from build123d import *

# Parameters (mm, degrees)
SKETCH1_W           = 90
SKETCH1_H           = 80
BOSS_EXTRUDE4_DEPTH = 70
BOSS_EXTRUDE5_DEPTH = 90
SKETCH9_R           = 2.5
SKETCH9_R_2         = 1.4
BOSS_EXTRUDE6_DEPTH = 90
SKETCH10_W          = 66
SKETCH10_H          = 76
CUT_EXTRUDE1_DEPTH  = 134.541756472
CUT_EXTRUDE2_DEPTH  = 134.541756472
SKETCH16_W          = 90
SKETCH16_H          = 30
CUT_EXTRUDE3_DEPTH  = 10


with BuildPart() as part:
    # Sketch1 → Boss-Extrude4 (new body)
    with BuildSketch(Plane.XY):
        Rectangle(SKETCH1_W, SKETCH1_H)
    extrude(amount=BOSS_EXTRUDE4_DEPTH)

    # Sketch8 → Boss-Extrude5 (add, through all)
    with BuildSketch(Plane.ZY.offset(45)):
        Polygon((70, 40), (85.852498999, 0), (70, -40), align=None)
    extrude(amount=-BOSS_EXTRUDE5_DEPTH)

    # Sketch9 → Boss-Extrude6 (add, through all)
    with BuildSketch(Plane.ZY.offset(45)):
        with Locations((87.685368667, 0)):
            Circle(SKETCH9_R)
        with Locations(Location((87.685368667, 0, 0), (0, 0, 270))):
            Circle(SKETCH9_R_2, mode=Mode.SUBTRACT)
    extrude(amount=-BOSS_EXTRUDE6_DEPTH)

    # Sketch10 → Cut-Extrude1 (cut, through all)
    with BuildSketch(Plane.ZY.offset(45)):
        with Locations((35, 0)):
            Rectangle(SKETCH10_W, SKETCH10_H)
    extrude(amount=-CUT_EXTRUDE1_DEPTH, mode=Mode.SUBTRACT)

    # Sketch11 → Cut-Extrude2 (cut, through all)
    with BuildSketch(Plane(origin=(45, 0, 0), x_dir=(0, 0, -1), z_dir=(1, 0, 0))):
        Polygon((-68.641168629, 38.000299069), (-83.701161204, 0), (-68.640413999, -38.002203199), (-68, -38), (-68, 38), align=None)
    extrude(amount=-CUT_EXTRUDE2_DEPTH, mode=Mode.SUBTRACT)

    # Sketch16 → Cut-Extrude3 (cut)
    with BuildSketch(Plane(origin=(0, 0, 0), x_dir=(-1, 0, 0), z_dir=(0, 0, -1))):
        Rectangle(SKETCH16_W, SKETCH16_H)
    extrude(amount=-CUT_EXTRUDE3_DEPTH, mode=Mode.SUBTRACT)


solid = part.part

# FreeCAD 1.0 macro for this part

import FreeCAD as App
import Part
import Sketcher

V = App.Vector
Q = App.Units.Quantity


def add_polygon(sketch, points):
    """Adds a closed chain of lines whose ends are joined by coincident constraints."""
    first, n = sketch.GeometryCount, len(points)
    for a, b in zip(points, points[1:] + points[:1]):
        sketch.addGeometry(Part.LineSegment(App.Vector(*a, 0), App.Vector(*b, 0)), False)
    for i in range(n):
        sketch.addConstraint(Sketcher.Constraint("Coincident", first + i, 2, first + (i + 1) % n, 1))

doc = App.newDocument("Part")
body = doc.addObject("PartDesign::Body", "Body")

# Sketch on XY plane
sketch1 = body.newObject("Sketcher::SketchObject", "Sketch")
sketch1.AttachmentSupport = (doc.getObject("XY_Plane"), [""])
sketch1.MapMode = "FlatFace"
add_polygon(sketch1, [(-45, 40), (-45, -40), (45, -40), (45, 40)])  # lines 0-3
sketch1.addConstraint([
    Sketcher.Constraint("Vertical", 0),
    Sketcher.Constraint("Horizontal", 1),
    Sketcher.Constraint("Vertical", 2),
    Sketcher.Constraint("Horizontal", 3),
    Sketcher.Constraint("Symmetric", 0, 2, 2, 2, -1, 1),
    Sketcher.Constraint("DistanceX", 1, 1, 1, 2, Q("90 mm")),
    Sketcher.Constraint("DistanceY", 0, 2, 0, 1, Q("80 mm")),
])
pad1 = body.newObject("PartDesign::Pad", "Pad")
pad1.Profile = sketch1
pad1.Length = 70

# Sketch on YZ plane
sketch2 = body.newObject("Sketcher::SketchObject", "Sketch001")
sketch2.AttachmentSupport = (doc.getObject("YZ_Plane"), [""])
sketch2.MapMode = "FlatFace"
sketch2.AttachmentOffset = App.Placement(V(0, 0, -45), App.Rotation())
add_polygon(sketch2, [(0, 86), (40, 70), (-40, 70)])  # lines 0-2
sketch2.addConstraint([
    Sketcher.Constraint("Horizontal", 1),
    Sketcher.Constraint("PointOnObject", 2, 2, -2),
    Sketcher.Constraint("Equal", 0, 2),
    Sketcher.Constraint("DistanceX", 1, 2, 1, 1, Q("80 mm")),
    Sketcher.Constraint("DistanceY", -1, 1, 0, 2, Q("70 mm")),
    Sketcher.Constraint("DistanceY", -1, 1, 2, 2, Q("85.852499 mm")),
])
pad2 = body.newObject("PartDesign::Pad", "Pad001")
pad2.Profile = sketch2
pad2.Length = 90

# Sketch on YZ plane
sketch3 = body.newObject("Sketcher::SketchObject", "Sketch002")
sketch3.AttachmentSupport = (doc.getObject("YZ_Plane"), [""])
sketch3.MapMode = "FlatFace"
sketch3.AttachmentOffset = App.Placement(V(0, 0, -45), App.Rotation())
sketch3.addGeometry([
    Part.Circle(V(0, 87.7, 0), V(0, 0, 1), 2.5),
    Part.Circle(V(0, 87.7, 0), V(0, 0, 1), 1.4),
], False)
sketch3.addConstraint([
    Sketcher.Constraint("Coincident", 1, 3, 0, 3),
    Sketcher.Constraint("PointOnObject", 0, 3, -2),
    Sketcher.Constraint("Diameter", 0, Q("5 mm")),
    Sketcher.Constraint("Diameter", 1, Q("2.8 mm")),
    Sketcher.Constraint("DistanceY", -1, 1, 0, 3, Q("87.685369 mm")),
])
pad3 = body.newObject("PartDesign::Pad", "Pad002")
pad3.Profile = sketch3
pad3.Length = 90

# Sketch on YZ plane
sketch4 = body.newObject("Sketcher::SketchObject", "Sketch003")
sketch4.AttachmentSupport = (doc.getObject("YZ_Plane"), [""])
sketch4.MapMode = "FlatFace"
sketch4.AttachmentOffset = App.Placement(V(0, 0, -45), App.Rotation())
add_polygon(sketch4, [(38, 2), (-38, 2), (-38, 68), (38, 68)])  # lines 0-3
sketch4.addConstraint([
    Sketcher.Constraint("Horizontal", 0),
    Sketcher.Constraint("Vertical", 1),
    Sketcher.Constraint("Horizontal", 2),
    Sketcher.Constraint("Vertical", 3),
    Sketcher.Constraint("DistanceX", 0, 2, 0, 1, Q("76 mm")),
    Sketcher.Constraint("DistanceY", 1, 1, 1, 2, Q("66 mm")),
    Sketcher.Constraint("DistanceX", 0, 2, -1, 1, Q("38 mm")),
    Sketcher.Constraint("DistanceY", -1, 1, 0, 2, Q("2 mm")),
])
pocket1 = body.newObject("PartDesign::Pocket", "Pocket")
pocket1.Profile = sketch4
pocket1.Type = "ThroughAll"
pocket1.Reversed = True

# Sketch on YZ plane
sketch5 = body.newObject("Sketcher::SketchObject", "Sketch004")
sketch5.AttachmentSupport = (doc.getObject("YZ_Plane"), [""])
sketch5.MapMode = "FlatFace"
sketch5.AttachmentOffset = App.Placement(V(0, 0, 45), App.Rotation())
add_polygon(sketch5, [(38, 68.6), (0, 83.7), (-38, 68.6), (-38, 68), (38, 68)])  # lines 0-4
sketch5.addConstraint([
    Sketcher.Constraint("Horizontal", 3),
    Sketcher.Constraint("PointOnObject", 0, 2, -2),
    Sketcher.Constraint("DistanceX", 3, 1, 3, 2, Q("76 mm")),
    Sketcher.Constraint("DistanceX", 2, 2, -1, 1, Q("38 mm")),
    Sketcher.Constraint("DistanceY", -1, 1, 2, 2, Q("68 mm")),
    Sketcher.Constraint("DistanceX", -1, 1, 4, 2, Q("38.000299 mm")),
    Sketcher.Constraint("Distance", 0, Q("40.87574 mm")),
    Sketcher.Constraint("Distance", 1, Q("40.877788 mm")),
    Sketcher.Constraint("Distance", 4, Q("0.641169 mm")),
    Sketcher.Constraint("Distance", 2, Q("0.640418 mm")),
])
pocket2 = body.newObject("PartDesign::Pocket", "Pocket001")
pocket2.Profile = sketch5
pocket2.Type = "ThroughAll"

# Sketch on XY plane
sketch6 = body.newObject("Sketcher::SketchObject", "Sketch005")
sketch6.AttachmentSupport = (doc.getObject("XY_Plane"), [""])
sketch6.MapMode = "FlatFace"
add_polygon(sketch6, [(45, 15), (45, -15), (-45, -15), (-45, 15)])  # lines 0-3
sketch6.addConstraint([
    Sketcher.Constraint("Vertical", 0),
    Sketcher.Constraint("Horizontal", 1),
    Sketcher.Constraint("Vertical", 2),
    Sketcher.Constraint("Horizontal", 3),
    Sketcher.Constraint("Symmetric", 0, 2, 2, 2, -1, 1),
    Sketcher.Constraint("DistanceX", 1, 2, 1, 1, Q("90 mm")),
    Sketcher.Constraint("DistanceY", 0, 2, 0, 1, Q("30 mm")),
])
pocket3 = body.newObject("PartDesign::Pocket", "Pocket002")
pocket3.Profile = sketch6
pocket3.Length = 10
pocket3.Reversed = True

doc.recompute()
